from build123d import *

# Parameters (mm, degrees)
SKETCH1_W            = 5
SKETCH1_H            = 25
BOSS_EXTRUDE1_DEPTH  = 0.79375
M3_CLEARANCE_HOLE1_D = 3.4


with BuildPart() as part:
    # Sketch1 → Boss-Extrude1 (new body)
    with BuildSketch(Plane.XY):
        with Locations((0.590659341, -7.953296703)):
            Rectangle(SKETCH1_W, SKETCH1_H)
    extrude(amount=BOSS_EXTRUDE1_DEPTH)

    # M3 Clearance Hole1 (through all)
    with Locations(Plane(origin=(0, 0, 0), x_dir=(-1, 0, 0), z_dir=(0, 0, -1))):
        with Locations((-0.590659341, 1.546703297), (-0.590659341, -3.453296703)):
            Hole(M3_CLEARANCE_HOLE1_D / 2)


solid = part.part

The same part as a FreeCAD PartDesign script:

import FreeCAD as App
import Part
import Sketcher
Q = App.Units.Quantity


def add_polygon(sketch, points):
    """Adds a closed chain of lines whose ends are joined by coincident constraints."""
    first, n = sketch.GeometryCount, len(points)
    for a, b in zip(points, points[1:] + points[:1]):
        sketch.addGeometry(Part.LineSegment(App.Vector(*a, 0), App.Vector(*b, 0)), False)
    for i in range(n):
        sketch.addConstraint(Sketcher.Constraint("Coincident", first + i, 2, first + (i + 1) % n, 1))

doc = App.newDocument("Part")
params = doc.addObject("Spreadsheet::Sheet", "Params")
for row, (alias, value) in enumerate([
    ("sketch1_width", "5 mm"),
    ("sketch1_height", "25 mm"),
    ("pad1_length", "0.79375 mm"),
    ("sketch2_diameter", "3.4 mm"),
    ("hole_diameter", "3.4 mm"),
], start=1):
    params.set(f"A{row}", alias)
    params.set(f"B{row}", "=" + value)
    params.setAlias(f"B{row}", alias)

body = doc.addObject("PartDesign::Body", "Body")

# Sketch on XY plane
sketch1 = doc.addObject("Sketcher::SketchObject", "Sketch")
body.addObject(sketch1)
sketch1.AttachmentSupport = (doc.XY_Plane, [""])
sketch1.MapMode = "FlatFace"
add_polygon(sketch1, [(-2, 5), (-2, -20), (3, -20), (3, 5)])  # lines 0-3
sketch1.addConstraint([
    Sketcher.Constraint("Vertical", 0),
    Sketcher.Constraint("Horizontal", 1),
    Sketcher.Constraint("Vertical", 2),
    Sketcher.Constraint("Horizontal", 3),
    Sketcher.Constraint("DistanceX", 1, 1, 1, 2, Q("5 mm")),
    Sketcher.Constraint("DistanceY", 0, 2, 0, 1, Q("25 mm")),
    Sketcher.Constraint("DistanceX", 0, 2, -1, 1, Q("1.909341 mm")),
    Sketcher.Constraint("DistanceY", 0, 2, -1, 1, Q("20.453297 mm")),
])
sketch1.setExpression("Constraints[8]", "Params.sketch1_width")
sketch1.setExpression("Constraints[9]", "Params.sketch1_height")
pad1 = doc.addObject("PartDesign::Pad", "Pad")
body.addObject(pad1)
pad1.Profile = sketch1
pad1.setExpression("Length", "Params.pad1_length")

# Sketch on XY plane
sketch2 = doc.addObject("Sketcher::SketchObject", "Sketch001")
body.addObject(sketch2)
sketch2.AttachmentSupport = (doc.XY_Plane, [""])
sketch2.MapMode = "FlatFace"
sketch2.addGeometry([
    Part.Circle(App.Vector(0.6, 1.5, 0), App.Vector(0, 0, 1), 1.7),
    Part.Circle(App.Vector(0.6, -3.5, 0), App.Vector(0, 0, 1), 1.7),
], False)
sketch2.addConstraint([
    Sketcher.Constraint("Equal", 0, 1),
    Sketcher.Constraint("Vertical", 0, 3, 1, 3),
    Sketcher.Constraint("Diameter", 0, Q("3.4 mm")),
    Sketcher.Constraint("DistanceY", 1, 3, 0, 3, Q("5 mm")),
    Sketcher.Constraint("DistanceX", -1, 1, 0, 3, Q("0.590659 mm")),
    Sketcher.Constraint("DistanceY", -1, 1, 0, 3, Q("1.546703 mm")),
])
sketch2.setExpression("Constraints[2]", "Params.sketch2_diameter")
doc.recompute()
hole = doc.addObject("PartDesign::Hole", "Hole")
body.addObject(hole)
hole.Profile = sketch2
hole.ThreadType = "None"
hole.setExpression("Diameter", "Params.hole_diameter")
hole.DepthType = "ThroughAll"
hole.Reversed = True

doc.recompute()
